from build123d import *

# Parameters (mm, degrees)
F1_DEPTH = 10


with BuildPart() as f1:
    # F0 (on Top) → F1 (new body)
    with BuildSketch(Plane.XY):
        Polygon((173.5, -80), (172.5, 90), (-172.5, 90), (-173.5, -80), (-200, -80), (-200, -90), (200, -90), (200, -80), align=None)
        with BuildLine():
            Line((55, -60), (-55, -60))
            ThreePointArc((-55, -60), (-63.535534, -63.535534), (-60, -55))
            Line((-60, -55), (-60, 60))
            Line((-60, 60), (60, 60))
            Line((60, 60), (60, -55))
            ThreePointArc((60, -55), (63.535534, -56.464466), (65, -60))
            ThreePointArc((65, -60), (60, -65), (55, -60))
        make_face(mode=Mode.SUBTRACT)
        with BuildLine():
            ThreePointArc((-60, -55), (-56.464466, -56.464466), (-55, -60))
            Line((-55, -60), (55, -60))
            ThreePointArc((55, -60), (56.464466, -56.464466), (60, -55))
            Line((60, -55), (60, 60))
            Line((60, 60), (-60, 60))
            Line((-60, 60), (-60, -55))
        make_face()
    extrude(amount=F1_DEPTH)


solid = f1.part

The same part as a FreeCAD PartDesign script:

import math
import FreeCAD as App
import Part
import Sketcher
from FreeCAD import Vector


def add_polygon(sketch, points):
    """Adds a closed chain of lines whose ends are joined by coincident constraints."""
    first, n = sketch.GeometryCount, len(points)
    for a, b in zip(points, points[1:] + points[:1]):
        sketch.addGeometry(Part.LineSegment(App.Vector(*a, 0), App.Vector(*b, 0)), False)
    for i in range(n):
        sketch.addConstraint(Sketcher.Constraint("Coincident", first + i, 2, first + (i + 1) % n, 1))

doc = App.newDocument("Part")
params = doc.addObject("Spreadsheet::Sheet", "Params")
for row, (alias, value) in enumerate([
    ("sketch1_radius", "5 mm"),
    ("sketch1_width", "345 mm"),
    ("sketch1_width2", "400 mm"),
    ("sketch1_height", "10 mm"),
    ("sketch1_width3", "26.5 mm"),
    ("pad1_length", "10 mm"),
], start=1):
    params.set(f"A{row}", alias)
    params.set(f"B{row}", "=" + value)
    params.setAlias(f"B{row}", alias)

body = doc.addObject("PartDesign::Body", "Body")

# Sketch on XY plane
sketch1 = doc.addObject("Sketcher::SketchObject", "Sketch")
body.addObject(sketch1)
sketch1.AttachmentSupport = (doc.XY_Plane, [""])
sketch1.MapMode = "FlatFace"
add_polygon(sketch1, [(173.5, -80), (172.5, 90), (-172.5, 90), (-173.5, -80), (-200, -80), (-200, -90), (200, -90), (200, -80)])  # lines 0-7
sketch1.addGeometry(Part.ArcOfCircle(Part.Circle(Vector(60, -60, 0), Vector(0, 0, 1), 5), math.radians(180), math.radians(360)), False)  # 8
sketch1.addGeometry(Part.ArcOfCircle(Part.Circle(Vector(60, -60, 0), Vector(0, 0, 1), 5), math.radians(89.999996), math.radians(180.000004)), False)  # 9
sketch1.addGeometry(Part.ArcOfCircle(Part.Circle(Vector(60, -60, 0), Vector(0, 0, 1), 5), math.radians(-0.000004), math.radians(90.000004)), False)  # 10
sketch1.addGeometry(Part.ArcOfCircle(Part.Circle(Vector(-60, -60, 0), Vector(0, 0, 1), 5), math.radians(89.999999), math.radians(360.000001)), False)  # 11
sketch1.addGeometry(Part.ArcOfCircle(Part.Circle(Vector(-60, -60, 0), Vector(0, 0, 1), 5), math.radians(-0.000004), math.radians(90.000004)), False)  # 12
sketch1.addConstraint(Sketcher.Constraint("Tangent", 8, 1, 9, 2))
sketch1.addConstraint(Sketcher.Constraint("Tangent", 9, 1, 10, 2))
sketch1.addConstraint(Sketcher.Constraint("Tangent", 10, 1, 8, 2))
sketch1.addConstraint(Sketcher.Constraint("Tangent", 11, 1, 12, 2))
sketch1.addConstraint(Sketcher.Constraint("Coincident", 12, 1, 11, 2))
sketch1.addConstraint(Sketcher.Constraint("Horizontal", 1))
sketch1.addConstraint(Sketcher.Constraint("Horizontal", 3))
sketch1.addConstraint(Sketcher.Constraint("Vertical", 4))
sketch1.addConstraint(Sketcher.Constraint("Horizontal", 5))
sketch1.addConstraint(Sketcher.Constraint("Vertical", 6))
sketch1.addConstraint(Sketcher.Constraint("Horizontal", 7))
sketch1.addConstraint(Sketcher.Constraint("Equal", 10, 11))
sketch1.addConstraint(Sketcher.Constraint("Symmetric", 8, 3, 11, 3, -2))
sketch1.addConstraint(Sketcher.Constraint("Symmetric", 3, 2, 6, 2, -2))
sketch1.addConstraint(Sketcher.Constraint("Horizontal", 12, 3, 8, 1))
sketch1.addConstraint(Sketcher.Constraint("Horizontal", 8, 1, 10, 1))
sketch1.addConstraint(Sketcher.Constraint("Horizontal", 10, 1, 12, 1))
sketch1.addConstraint(Sketcher.Constraint("Vertical", 10, 3, 9, 1))
sketch1.addConstraint(Sketcher.Constraint("Vertical", 12, 3, 11, 1))
sketch1.addConstraint(Sketcher.Constraint("Equal", 3, 7))
sketch1.addConstraint(Sketcher.Constraint("Equal", 0, 2))
sketch1.addConstraint(Sketcher.Constraint("Radius", 8, 5.0))
sketch1.addConstraint(Sketcher.Constraint("DistanceX", 1, 2, 1, 1, 345.0))
sketch1.addConstraint(Sketcher.Constraint("DistanceX", 5, 1, 5, 2, 400.0))
sketch1.addConstraint(Sketcher.Constraint("DistanceY", 4, 2, 4, 1, 10.0))
sketch1.addConstraint(Sketcher.Constraint("DistanceX", 3, 2, 3, 1, 26.5))
sketch1.addConstraint(Sketcher.Constraint("DistanceX", -1, 1, 8, 3, 60.0))
sketch1.addConstraint(Sketcher.Constraint("DistanceY", 8, 3, -1, 1, 60.0))
sketch1.addConstraint(Sketcher.Constraint("DistanceY", -1, 1, 0, 2, 90.0))
sketch1.addConstraint(Sketcher.Constraint("DistanceY", 2, 2, -1, 1, 80.0))
sketch1.setExpression("Constraints[29]", "Params.sketch1_radius")
sketch1.setExpression("Constraints[30]", "Params.sketch1_width")
sketch1.setExpression("Constraints[31]", "Params.sketch1_width2")
sketch1.setExpression("Constraints[32]", "Params.sketch1_height")
sketch1.setExpression("Constraints[33]", "Params.sketch1_width3")
pad1 = doc.addObject("PartDesign::Pad", "Pad")
body.addObject(pad1)
pad1.Profile = sketch1
pad1.setExpression("Length", "Params.pad1_length")

doc.recompute()
